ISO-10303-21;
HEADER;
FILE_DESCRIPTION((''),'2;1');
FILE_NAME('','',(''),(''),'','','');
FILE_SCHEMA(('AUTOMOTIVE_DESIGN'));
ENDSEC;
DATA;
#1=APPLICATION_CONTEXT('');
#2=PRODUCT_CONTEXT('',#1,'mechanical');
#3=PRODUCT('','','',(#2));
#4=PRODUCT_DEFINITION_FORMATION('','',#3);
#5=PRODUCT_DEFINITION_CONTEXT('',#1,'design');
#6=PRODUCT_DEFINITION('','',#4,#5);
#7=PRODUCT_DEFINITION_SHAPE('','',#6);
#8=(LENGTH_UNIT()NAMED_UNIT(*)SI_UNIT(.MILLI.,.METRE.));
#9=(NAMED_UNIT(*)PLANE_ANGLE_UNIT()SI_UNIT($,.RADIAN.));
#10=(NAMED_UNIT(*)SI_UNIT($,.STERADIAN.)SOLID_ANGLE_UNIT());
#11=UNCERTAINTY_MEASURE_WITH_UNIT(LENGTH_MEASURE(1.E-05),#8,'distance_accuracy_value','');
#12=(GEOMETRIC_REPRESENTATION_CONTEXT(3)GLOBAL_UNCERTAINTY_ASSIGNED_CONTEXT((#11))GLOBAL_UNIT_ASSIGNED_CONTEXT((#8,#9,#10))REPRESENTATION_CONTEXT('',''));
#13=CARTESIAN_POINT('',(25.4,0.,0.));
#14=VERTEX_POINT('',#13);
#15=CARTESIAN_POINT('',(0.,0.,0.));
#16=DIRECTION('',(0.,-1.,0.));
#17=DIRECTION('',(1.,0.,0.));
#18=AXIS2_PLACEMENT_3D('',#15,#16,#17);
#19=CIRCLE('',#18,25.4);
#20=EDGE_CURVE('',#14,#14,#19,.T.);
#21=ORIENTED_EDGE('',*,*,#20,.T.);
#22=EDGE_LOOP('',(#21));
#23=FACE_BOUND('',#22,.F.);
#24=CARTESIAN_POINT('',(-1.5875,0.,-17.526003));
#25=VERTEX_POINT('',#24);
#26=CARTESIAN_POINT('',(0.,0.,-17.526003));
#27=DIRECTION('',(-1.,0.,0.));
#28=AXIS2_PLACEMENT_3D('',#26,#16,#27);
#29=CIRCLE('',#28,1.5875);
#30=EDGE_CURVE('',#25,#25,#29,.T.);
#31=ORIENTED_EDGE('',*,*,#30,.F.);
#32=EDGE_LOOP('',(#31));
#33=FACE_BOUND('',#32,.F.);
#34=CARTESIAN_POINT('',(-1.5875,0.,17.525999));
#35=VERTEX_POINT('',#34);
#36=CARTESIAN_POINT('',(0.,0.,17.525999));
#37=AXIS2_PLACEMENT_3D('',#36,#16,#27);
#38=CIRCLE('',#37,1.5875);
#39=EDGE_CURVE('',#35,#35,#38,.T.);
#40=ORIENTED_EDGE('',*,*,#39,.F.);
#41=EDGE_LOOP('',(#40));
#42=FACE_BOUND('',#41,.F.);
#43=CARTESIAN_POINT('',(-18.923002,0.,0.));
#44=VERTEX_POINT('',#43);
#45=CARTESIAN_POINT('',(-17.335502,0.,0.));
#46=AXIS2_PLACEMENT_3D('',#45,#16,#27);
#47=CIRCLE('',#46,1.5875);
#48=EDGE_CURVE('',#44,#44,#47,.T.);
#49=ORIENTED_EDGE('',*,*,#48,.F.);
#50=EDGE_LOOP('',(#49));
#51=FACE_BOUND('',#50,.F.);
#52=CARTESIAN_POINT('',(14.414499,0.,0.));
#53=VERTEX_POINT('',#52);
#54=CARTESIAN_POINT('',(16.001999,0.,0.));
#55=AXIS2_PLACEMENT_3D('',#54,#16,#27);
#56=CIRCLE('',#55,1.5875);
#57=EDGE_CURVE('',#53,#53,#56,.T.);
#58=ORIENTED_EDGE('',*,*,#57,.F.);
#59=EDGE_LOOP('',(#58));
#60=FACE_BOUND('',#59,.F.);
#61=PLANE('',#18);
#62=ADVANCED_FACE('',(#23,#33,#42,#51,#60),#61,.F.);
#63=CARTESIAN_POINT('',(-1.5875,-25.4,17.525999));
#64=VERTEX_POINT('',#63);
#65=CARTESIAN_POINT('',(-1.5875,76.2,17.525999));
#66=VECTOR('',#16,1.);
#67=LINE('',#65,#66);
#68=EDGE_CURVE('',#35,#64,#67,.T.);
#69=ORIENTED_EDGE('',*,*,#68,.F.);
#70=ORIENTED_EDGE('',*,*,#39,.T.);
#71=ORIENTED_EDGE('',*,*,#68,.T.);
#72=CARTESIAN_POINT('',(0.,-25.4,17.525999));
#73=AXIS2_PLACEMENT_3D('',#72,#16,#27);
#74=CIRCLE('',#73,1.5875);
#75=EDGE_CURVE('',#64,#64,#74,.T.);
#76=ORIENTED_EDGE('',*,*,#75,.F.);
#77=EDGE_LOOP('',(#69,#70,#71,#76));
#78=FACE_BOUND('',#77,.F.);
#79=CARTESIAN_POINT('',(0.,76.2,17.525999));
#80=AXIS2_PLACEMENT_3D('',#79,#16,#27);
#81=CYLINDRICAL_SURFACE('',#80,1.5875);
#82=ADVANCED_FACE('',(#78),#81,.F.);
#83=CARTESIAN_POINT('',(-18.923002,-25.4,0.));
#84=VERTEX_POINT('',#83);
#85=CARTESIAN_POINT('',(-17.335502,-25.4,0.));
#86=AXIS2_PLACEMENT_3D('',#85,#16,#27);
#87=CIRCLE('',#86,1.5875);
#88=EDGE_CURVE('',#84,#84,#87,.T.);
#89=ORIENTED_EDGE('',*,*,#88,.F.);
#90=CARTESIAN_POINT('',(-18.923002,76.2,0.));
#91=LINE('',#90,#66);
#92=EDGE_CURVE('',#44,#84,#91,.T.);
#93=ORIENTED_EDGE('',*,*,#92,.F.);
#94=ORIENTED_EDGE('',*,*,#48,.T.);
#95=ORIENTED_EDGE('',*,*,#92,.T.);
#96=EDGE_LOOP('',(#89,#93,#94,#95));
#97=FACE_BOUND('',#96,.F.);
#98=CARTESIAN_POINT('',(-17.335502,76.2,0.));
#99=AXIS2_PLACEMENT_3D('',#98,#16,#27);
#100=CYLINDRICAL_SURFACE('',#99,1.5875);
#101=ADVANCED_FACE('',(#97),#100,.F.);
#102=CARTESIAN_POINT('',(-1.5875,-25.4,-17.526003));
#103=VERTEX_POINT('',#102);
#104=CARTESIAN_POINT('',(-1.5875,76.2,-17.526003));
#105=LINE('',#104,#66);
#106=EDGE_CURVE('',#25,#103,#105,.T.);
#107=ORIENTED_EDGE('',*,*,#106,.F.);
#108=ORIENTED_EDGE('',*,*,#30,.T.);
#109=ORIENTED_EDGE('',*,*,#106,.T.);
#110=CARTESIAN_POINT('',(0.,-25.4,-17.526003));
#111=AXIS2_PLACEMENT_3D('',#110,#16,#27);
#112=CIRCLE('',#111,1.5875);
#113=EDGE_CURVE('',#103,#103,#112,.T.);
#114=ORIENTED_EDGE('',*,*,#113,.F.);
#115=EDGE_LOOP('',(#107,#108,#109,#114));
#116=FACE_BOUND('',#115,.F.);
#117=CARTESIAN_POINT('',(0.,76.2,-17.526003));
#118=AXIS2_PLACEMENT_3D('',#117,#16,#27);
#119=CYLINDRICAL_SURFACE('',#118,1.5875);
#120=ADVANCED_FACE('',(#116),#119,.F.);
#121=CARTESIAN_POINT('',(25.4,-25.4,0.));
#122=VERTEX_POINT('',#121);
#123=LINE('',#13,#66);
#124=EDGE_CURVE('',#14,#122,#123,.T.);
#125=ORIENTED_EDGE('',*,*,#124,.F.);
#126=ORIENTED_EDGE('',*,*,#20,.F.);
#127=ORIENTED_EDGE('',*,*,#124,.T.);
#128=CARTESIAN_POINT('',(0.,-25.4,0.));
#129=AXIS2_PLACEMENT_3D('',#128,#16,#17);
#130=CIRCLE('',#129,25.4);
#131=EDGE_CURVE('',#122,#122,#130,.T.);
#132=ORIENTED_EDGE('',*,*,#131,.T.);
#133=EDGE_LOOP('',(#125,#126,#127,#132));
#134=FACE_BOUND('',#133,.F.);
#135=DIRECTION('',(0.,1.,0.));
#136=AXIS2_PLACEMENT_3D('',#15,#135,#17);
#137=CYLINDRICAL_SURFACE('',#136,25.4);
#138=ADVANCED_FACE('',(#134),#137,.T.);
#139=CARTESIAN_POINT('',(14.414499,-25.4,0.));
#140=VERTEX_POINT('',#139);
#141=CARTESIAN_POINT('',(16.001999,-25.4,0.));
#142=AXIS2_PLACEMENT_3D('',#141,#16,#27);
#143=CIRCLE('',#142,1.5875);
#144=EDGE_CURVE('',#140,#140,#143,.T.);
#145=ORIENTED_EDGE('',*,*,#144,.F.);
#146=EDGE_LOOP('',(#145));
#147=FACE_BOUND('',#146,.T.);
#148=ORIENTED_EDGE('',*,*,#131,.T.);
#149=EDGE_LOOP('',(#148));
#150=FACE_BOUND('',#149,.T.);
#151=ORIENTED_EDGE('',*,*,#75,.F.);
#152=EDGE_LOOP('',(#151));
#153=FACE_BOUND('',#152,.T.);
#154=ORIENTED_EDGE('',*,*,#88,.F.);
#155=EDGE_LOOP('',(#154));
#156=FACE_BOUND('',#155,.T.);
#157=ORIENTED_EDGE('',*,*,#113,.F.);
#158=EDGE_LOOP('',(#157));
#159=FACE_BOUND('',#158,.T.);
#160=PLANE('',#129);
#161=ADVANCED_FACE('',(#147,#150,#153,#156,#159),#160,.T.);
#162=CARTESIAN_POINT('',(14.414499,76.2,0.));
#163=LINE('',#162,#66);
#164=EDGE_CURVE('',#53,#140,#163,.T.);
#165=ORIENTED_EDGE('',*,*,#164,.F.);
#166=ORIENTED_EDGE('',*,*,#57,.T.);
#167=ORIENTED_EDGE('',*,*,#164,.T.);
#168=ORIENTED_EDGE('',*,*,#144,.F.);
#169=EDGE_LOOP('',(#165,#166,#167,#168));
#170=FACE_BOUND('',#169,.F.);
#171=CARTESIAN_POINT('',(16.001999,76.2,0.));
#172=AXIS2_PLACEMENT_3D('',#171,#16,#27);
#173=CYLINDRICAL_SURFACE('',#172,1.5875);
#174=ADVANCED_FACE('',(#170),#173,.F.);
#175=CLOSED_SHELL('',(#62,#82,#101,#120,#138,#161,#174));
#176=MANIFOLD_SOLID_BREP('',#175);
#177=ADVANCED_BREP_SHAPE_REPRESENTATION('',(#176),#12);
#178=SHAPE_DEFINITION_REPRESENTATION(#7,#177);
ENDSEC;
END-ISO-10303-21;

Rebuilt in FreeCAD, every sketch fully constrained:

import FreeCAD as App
import Part
import Sketcher
Q = App.Units.Quantity

doc = App.newDocument("Part")
body = doc.addObject("PartDesign::Body", "Body")

sketch1 = body.newObject("Sketcher::SketchObject", "Sketch")
sketch1.AttachmentSupport = (doc.getObject("XZ_Plane"), [""])
sketch1.MapMode = "FlatFace"
sketch1.addGeometry(Part.Circle(App.Vector(0, 0, 0), App.Vector(0, 0, 1), 25), False)
sketch1.addConstraint([
    Sketcher.Constraint("Coincident", 0, 3, -1, 1),
    Sketcher.Constraint("Diameter", 0, Q("2 in")),
])
pad1 = body.newObject("PartDesign::Pad", "Pad")
pad1.Profile = sketch1
pad1.Length = Q("1 in")

sketch2 = body.newObject("Sketcher::SketchObject", "Sketch001")
sketch2.AttachmentSupport = (doc.getObject("XZ_Plane"), [""])
sketch2.MapMode = "FlatFace"
sketch2.addGeometry([
    Part.Circle(App.Vector(0, -17.5, 0), App.Vector(0, 0, 1), 1.6),
    Part.Circle(App.Vector(16, 0, 0), App.Vector(0, 0, 1), 1.6),
    Part.Circle(App.Vector(0, 17.5, 0), App.Vector(0, 0, 1), 1.6),
    Part.Circle(App.Vector(-17.3, 0, 0), App.Vector(0, 0, 1), 1.6),
], False)
sketch2.addConstraint([
    Sketcher.Constraint("Equal", 0, 1),
    Sketcher.Constraint("Equal", 1, 2),
    Sketcher.Constraint("Equal", 2, 3),
    Sketcher.Constraint("Symmetric", 0, 3, 2, 3, -1, 1),
    Sketcher.Constraint("PointOnObject", 0, 3, -2),
    Sketcher.Constraint("PointOnObject", 1, 3, -1),
    Sketcher.Constraint("PointOnObject", 3, 3, -1),
    Sketcher.Constraint("Diameter", 0, Q("0.125 in")),
    Sketcher.Constraint("DistanceY", 0, 3, -1, 1, Q("0.6900001 in")),
    Sketcher.Constraint("DistanceX", -1, 1, 1, 3, Q("0.63 in")),
    Sketcher.Constraint("DistanceX", 3, 3, 1, 3, Q("1.3125 in")),
])
doc.recompute()
hole = body.newObject("PartDesign::Hole", "Hole")
hole.Profile = sketch2
hole.ThreadType = "None"
hole.Diameter = Q("0.125 in")
hole.DepthType = "ThroughAll"
hole.Reversed = True

doc.recompute()
